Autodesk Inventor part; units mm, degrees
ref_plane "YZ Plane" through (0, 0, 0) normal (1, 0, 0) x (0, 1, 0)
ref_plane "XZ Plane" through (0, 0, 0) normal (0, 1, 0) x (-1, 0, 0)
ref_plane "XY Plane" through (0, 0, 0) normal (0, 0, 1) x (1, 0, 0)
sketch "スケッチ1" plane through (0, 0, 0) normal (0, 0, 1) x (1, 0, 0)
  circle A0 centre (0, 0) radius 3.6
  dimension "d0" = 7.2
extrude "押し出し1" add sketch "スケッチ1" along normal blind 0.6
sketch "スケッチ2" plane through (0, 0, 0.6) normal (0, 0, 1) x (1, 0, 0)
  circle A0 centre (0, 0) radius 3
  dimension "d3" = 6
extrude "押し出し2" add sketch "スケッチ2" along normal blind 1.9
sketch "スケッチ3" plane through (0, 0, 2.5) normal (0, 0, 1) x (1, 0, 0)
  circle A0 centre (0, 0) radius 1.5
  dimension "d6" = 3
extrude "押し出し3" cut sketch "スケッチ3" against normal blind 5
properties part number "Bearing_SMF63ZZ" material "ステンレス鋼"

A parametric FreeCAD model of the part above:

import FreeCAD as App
import Part
import Sketcher

doc = App.newDocument("Part")
body = doc.addObject("PartDesign::Body", "Body")

# Sketch on XY plane
sketch1 = body.newObject("Sketcher::SketchObject", "Sketch")
sketch1.AttachmentSupport = (doc.getObject("XY_Plane"), [""])
sketch1.MapMode = "FlatFace"
sketch1.addGeometry(Part.Circle(App.Vector(0, 0, 0), App.Vector(0, 0, 1), 3.6), False)
sketch1.addConstraint([
    Sketcher.Constraint("Coincident", 0, 3, -1, 1),
    Sketcher.Constraint("Diameter", 0, 7.2),
])
pad1 = body.newObject("PartDesign::Pad", "Pad")
pad1.Profile = sketch1
pad1.Length = 0.6

# Sketch on XY plane
sketch2 = body.newObject("Sketcher::SketchObject", "Sketch001")
sketch2.AttachmentSupport = (doc.getObject("XY_Plane"), [""])
sketch2.MapMode = "FlatFace"
sketch2.AttachmentOffset = App.Placement(App.Vector(0, 0, 0.6), App.Rotation())
sketch2.addGeometry(Part.Circle(App.Vector(0, 0, 0), App.Vector(0, 0, 1), 3), False)
sketch2.addConstraint([
    Sketcher.Constraint("Coincident", 0, 3, -1, 1),
    Sketcher.Constraint("Diameter", 0, 6.0),
])
pad2 = body.newObject("PartDesign::Pad", "Pad001")
pad2.Profile = sketch2
pad2.Length = 1.9

# Sketch on XY plane
sketch3 = body.newObject("Sketcher::SketchObject", "Sketch002")
sketch3.AttachmentSupport = (doc.getObject("XY_Plane"), [""])
sketch3.MapMode = "FlatFace"
sketch3.AttachmentOffset = App.Placement(App.Vector(0, 0, 2.5), App.Rotation())
sketch3.addGeometry(Part.Circle(App.Vector(0, 0, 0), App.Vector(0, 0, 1), 1.5), False)
sketch3.addConstraint([
    Sketcher.Constraint("Coincident", 0, 3, -1, 1),
    Sketcher.Constraint("Diameter", 0, 3.0),
])
pocket1 = body.newObject("PartDesign::Pocket", "Pocket")
pocket1.Profile = sketch3
pocket1.Length = 5

doc.recompute()
